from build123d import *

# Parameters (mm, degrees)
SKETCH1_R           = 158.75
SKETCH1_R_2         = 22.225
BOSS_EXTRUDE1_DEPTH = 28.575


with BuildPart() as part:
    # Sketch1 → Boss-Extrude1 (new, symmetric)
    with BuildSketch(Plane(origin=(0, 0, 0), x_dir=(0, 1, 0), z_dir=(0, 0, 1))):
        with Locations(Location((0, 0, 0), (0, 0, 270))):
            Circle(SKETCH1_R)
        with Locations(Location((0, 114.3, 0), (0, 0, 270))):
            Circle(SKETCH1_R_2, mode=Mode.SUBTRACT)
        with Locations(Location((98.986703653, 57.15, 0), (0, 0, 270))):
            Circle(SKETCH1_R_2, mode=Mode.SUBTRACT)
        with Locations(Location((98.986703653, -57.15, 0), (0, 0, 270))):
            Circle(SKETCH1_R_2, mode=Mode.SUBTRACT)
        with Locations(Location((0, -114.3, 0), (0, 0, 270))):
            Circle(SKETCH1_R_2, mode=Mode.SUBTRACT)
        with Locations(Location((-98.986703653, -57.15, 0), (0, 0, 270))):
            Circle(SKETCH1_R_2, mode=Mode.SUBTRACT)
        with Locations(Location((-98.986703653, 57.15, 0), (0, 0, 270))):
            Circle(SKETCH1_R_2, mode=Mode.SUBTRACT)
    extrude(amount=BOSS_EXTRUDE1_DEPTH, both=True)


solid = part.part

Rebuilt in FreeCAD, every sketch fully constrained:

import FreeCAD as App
import Part
import Sketcher

V = App.Vector
Q = App.Units.Quantity

doc = App.newDocument("Part")
params = doc.addObject("Spreadsheet::Sheet", "Params")
for row, (alias, value) in enumerate([
    ("sketch1_diameter", "12.5 in"),
    ("sketch1_diameter2", "1.75 in"),
    ("pad1_length", "2.25 in"),
], start=1):
    params.set(f"A{row}", alias)
    params.set(f"B{row}", "=" + value)
    params.setAlias(f"B{row}", alias)

body = doc.addObject("PartDesign::Body", "Body")

sketch1 = doc.addObject("Sketcher::SketchObject", "Sketch")
body.addObject(sketch1)
sketch1.AttachmentSupport = (doc.XY_Plane, [""])
sketch1.MapMode = "FlatFace"
sketch1.addGeometry(Part.Circle(V(0, 0, 0), V(0, 0, 1), 159), False)
sketch1.addGeometry(Part.Circle(V(-57, -99, 0), V(0, 0, 1), 22), False)
sketch1.addGeometry(Part.Circle(V(-114, 0, 0), V(0, 0, 1), 22), False)
sketch1.addGeometry(Part.Circle(V(57, -99, 0), V(0, 0, 1), 22), False)
sketch1.addGeometry(Part.Circle(V(-57, 99, 0), V(0, 0, 1), 22), False)
sketch1.addGeometry(Part.Circle(V(114, 0, 0), V(0, 0, 1), 22), False)
sketch1.addGeometry(Part.Circle(V(57, 99, 0), V(0, 0, 1), 22), False)
sketch1.addConstraint(Sketcher.Constraint("Coincident", 0, 3, -1, 1))
sketch1.addConstraint(Sketcher.Constraint("Equal", 1, 2))
sketch1.addConstraint(Sketcher.Constraint("Equal", 2, 3))
sketch1.addConstraint(Sketcher.Constraint("Equal", 3, 4))
sketch1.addConstraint(Sketcher.Constraint("Equal", 4, 5))
sketch1.addConstraint(Sketcher.Constraint("Equal", 5, 6))
sketch1.addConstraint(Sketcher.Constraint("Symmetric", 3, 3, 4, 3, -1, 1))
sketch1.addConstraint(Sketcher.Constraint("Symmetric", 2, 3, 5, 3, -1, 1))
sketch1.addConstraint(Sketcher.Constraint("Symmetric", 1, 3, 6, 3, -1, 1))
sketch1.addConstraint(Sketcher.Constraint("Symmetric", 1, 3, 3, 3, -2))
sketch1.addConstraint(Sketcher.Constraint("PointOnObject", 2, 3, -1))
sketch1.addConstraint(Sketcher.Constraint("Diameter", 0, Q("12.5 in")))
sketch1.addConstraint(Sketcher.Constraint("Diameter", 1, Q("1.75 in")))
sketch1.addConstraint(Sketcher.Constraint("DistanceX", 2, 3, 5, 3, Q("9 in")))
sketch1.addConstraint(Sketcher.Constraint("DistanceX", 1, 3, 3, 3, Q("4.5 in")))
sketch1.addConstraint(Sketcher.Constraint("DistanceY", 1, 3, -1, 1, 98.986704))
sketch1.setExpression("Constraints[11]", "Params.sketch1_diameter")
sketch1.setExpression("Constraints[12]", "Params.sketch1_diameter2")
pad1 = doc.addObject("PartDesign::Pad", "Pad")
body.addObject(pad1)
pad1.Profile = sketch1
pad1.setExpression("Length", "Params.pad1_length")
pad1.Midplane = True

doc.recompute()
